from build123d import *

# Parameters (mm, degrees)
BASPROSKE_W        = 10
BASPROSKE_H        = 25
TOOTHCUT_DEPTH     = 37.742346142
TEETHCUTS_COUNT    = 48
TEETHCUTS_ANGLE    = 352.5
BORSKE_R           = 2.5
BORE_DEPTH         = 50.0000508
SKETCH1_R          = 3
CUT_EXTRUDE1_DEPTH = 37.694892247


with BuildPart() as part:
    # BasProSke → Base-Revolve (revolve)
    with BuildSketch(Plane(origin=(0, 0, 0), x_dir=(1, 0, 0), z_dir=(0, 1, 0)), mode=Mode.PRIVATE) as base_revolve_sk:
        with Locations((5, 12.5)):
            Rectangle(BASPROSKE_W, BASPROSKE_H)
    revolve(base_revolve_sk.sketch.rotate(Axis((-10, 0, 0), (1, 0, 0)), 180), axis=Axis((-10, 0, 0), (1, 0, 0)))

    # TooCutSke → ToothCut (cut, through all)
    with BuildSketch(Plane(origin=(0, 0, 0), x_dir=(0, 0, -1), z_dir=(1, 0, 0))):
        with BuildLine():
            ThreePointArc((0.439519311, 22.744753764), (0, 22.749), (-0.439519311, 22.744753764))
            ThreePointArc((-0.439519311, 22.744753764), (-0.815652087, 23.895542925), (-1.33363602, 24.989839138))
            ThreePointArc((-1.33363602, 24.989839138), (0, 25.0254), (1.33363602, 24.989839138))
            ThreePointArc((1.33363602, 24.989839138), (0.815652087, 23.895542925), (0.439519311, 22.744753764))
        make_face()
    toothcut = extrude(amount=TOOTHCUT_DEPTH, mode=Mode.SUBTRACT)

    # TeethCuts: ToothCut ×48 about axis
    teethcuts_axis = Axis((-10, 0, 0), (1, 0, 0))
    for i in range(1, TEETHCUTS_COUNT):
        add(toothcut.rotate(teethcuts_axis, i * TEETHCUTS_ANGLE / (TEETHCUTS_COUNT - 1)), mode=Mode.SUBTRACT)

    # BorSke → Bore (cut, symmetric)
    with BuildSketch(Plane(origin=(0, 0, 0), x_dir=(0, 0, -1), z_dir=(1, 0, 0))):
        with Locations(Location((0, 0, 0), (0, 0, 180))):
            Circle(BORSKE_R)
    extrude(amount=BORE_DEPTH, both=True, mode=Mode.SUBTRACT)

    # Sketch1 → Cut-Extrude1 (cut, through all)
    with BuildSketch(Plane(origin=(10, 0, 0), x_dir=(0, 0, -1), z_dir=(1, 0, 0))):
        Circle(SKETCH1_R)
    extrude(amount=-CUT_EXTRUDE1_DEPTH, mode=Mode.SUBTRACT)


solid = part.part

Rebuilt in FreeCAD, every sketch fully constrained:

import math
import FreeCAD as App
import Part
import Sketcher
from FreeCAD import Vector


def add_polygon(sketch, points):
    """Adds a closed chain of lines whose ends are joined by coincident constraints."""
    first, n = sketch.GeometryCount, len(points)
    for a, b in zip(points, points[1:] + points[:1]):
        sketch.addGeometry(Part.LineSegment(App.Vector(*a, 0), App.Vector(*b, 0)), False)
    for i in range(n):
        sketch.addConstraint(Sketcher.Constraint("Coincident", first + i, 2, first + (i + 1) % n, 1))

doc = App.newDocument("Part")
body = doc.addObject("PartDesign::Body", "Body")

# Sketch on XZ plane
sketch1 = doc.addObject("Sketcher::SketchObject", "Sketch")
body.addObject(sketch1)
sketch1.AttachmentSupport = (doc.XZ_Plane, [""])
sketch1.MapMode = "FlatFace"
add_polygon(sketch1, [(0, -25), (0, 0), (10, 0), (10, -25)])  # lines 0-3
sketch1.addConstraint(Sketcher.Constraint("Vertical", 0))
sketch1.addConstraint(Sketcher.Constraint("Horizontal", 1))
sketch1.addConstraint(Sketcher.Constraint("Vertical", 2))
sketch1.addConstraint(Sketcher.Constraint("Horizontal", 3))
sketch1.addConstraint(Sketcher.Constraint("Coincident", 0, 2, -1, 1))
sketch1.addConstraint(Sketcher.Constraint("DistanceX", 1, 1, 1, 2, 10.0))
sketch1.addConstraint(Sketcher.Constraint("DistanceY", 0, 1, 0, 2, 25.0))
revolution = doc.addObject("PartDesign::Revolution", "Revolution")
body.addObject(revolution)
revolution.Profile = sketch1
revolution.ReferenceAxis = (sketch1, ["H_Axis"])
revolution.Angle = 360

# Sketch on YZ plane
sketch2 = doc.addObject("Sketcher::SketchObject", "Sketch001")
body.addObject(sketch2)
sketch2.AttachmentSupport = (doc.YZ_Plane, [""])
sketch2.MapMode = "FlatFace"
sketch2.addGeometry(Part.ArcOfCircle(Part.Circle(Vector(0, 0, 0), Vector(0, 0, 1), 22.7), math.radians(-1.11), math.radians(1.11)), False)
sketch2.addGeometry(Part.ArcOfCircle(Part.Circle(Vector(20.3, -9.7, 0), Vector(0, 0, 1), 9.6), math.radians(61.05), math.radians(75.52)), False)
sketch2.addGeometry(Part.ArcOfCircle(Part.Circle(Vector(0, 0, 0), Vector(0, 0, 1), 25), math.radians(-3.05), math.radians(3.05)), False)
sketch2.addGeometry(Part.ArcOfCircle(Part.Circle(Vector(20.3, 9.7, 0), Vector(0, 0, 1), 9.6), math.radians(-75.52), math.radians(-61.05)), False)
sketch2.addConstraint(Sketcher.Constraint("Coincident", 0, 1, 1, 2))
sketch2.addConstraint(Sketcher.Constraint("Coincident", 1, 1, 2, 1))
sketch2.addConstraint(Sketcher.Constraint("Coincident", 2, 2, 3, 2))
sketch2.addConstraint(Sketcher.Constraint("Coincident", 3, 1, 0, 2))
sketch2.addConstraint(Sketcher.Constraint("Coincident", 0, 3, -1, 1))
sketch2.addConstraint(Sketcher.Constraint("Coincident", 2, 3, -1, 1))
sketch2.addConstraint(Sketcher.Constraint("Equal", 1, 3))
sketch2.addConstraint(Sketcher.Constraint("Symmetric", 1, 3, 3, 3, -1))
sketch2.addConstraint(Sketcher.Constraint("Radius", 1, 9.6))
sketch2.addConstraint(Sketcher.Constraint("Radius", 0, 22.749001))
sketch2.addConstraint(Sketcher.Constraint("Radius", 2, 25.0254))
sketch2.addConstraint(Sketcher.Constraint("DistanceY", 0, 1, -1, 1, 0.439519))
sketch2.addConstraint(Sketcher.Constraint("DistanceX", -1, 1, 2, 2, 24.989839))
pocket1 = doc.addObject("PartDesign::Pocket", "Pocket")
body.addObject(pocket1)
pocket1.Profile = sketch2
pocket1.Type = "ThroughAll"
pocket1.Reversed = True
doc.recompute()

polarpattern = doc.addObject("PartDesign::PolarPattern", "PolarPattern")
body.addObject(polarpattern)
polarpattern.Originals = [pocket1]
polarpattern.Axis = (doc.X_Axis, [""])
polarpattern.Angle = 360
polarpattern.Occurrences = 48
body.Tip = polarpattern

# Sketch on YZ plane
sketch3 = doc.addObject("Sketcher::SketchObject", "Sketch002")
body.addObject(sketch3)
sketch3.AttachmentSupport = (doc.YZ_Plane, [""])
sketch3.MapMode = "FlatFace"
sketch3.addGeometry(Part.Circle(Vector(0, 0, 0), Vector(0, 0, 1), 2.5), False)
sketch3.addConstraint(Sketcher.Constraint("Coincident", 0, 3, -1, 1))
sketch3.addConstraint(Sketcher.Constraint("Diameter", 0, 5.0))
pocket2 = doc.addObject("PartDesign::Pocket", "Pocket001")
body.addObject(pocket2)
pocket2.Profile = sketch3
pocket2.Length = 100.000102
pocket2.Midplane = True

# Sketch on YZ plane
sketch4 = doc.addObject("Sketcher::SketchObject", "Sketch003")
body.addObject(sketch4)
sketch4.AttachmentSupport = (doc.YZ_Plane, [""])
sketch4.MapMode = "FlatFace"
sketch4.AttachmentOffset = App.Placement(Vector(0, 0, 10), App.Rotation())
sketch4.addGeometry(Part.Circle(Vector(0, 0, 0), Vector(0, 0, 1), 3), False)
sketch4.addConstraint(Sketcher.Constraint("Coincident", 0, 3, -1, 1))
sketch4.addConstraint(Sketcher.Constraint("Diameter", 0, 6.0))
pocket3 = doc.addObject("PartDesign::Pocket", "Pocket002")
body.addObject(pocket3)
pocket3.Profile = sketch4
pocket3.Type = "ThroughAll"

doc.recompute()
